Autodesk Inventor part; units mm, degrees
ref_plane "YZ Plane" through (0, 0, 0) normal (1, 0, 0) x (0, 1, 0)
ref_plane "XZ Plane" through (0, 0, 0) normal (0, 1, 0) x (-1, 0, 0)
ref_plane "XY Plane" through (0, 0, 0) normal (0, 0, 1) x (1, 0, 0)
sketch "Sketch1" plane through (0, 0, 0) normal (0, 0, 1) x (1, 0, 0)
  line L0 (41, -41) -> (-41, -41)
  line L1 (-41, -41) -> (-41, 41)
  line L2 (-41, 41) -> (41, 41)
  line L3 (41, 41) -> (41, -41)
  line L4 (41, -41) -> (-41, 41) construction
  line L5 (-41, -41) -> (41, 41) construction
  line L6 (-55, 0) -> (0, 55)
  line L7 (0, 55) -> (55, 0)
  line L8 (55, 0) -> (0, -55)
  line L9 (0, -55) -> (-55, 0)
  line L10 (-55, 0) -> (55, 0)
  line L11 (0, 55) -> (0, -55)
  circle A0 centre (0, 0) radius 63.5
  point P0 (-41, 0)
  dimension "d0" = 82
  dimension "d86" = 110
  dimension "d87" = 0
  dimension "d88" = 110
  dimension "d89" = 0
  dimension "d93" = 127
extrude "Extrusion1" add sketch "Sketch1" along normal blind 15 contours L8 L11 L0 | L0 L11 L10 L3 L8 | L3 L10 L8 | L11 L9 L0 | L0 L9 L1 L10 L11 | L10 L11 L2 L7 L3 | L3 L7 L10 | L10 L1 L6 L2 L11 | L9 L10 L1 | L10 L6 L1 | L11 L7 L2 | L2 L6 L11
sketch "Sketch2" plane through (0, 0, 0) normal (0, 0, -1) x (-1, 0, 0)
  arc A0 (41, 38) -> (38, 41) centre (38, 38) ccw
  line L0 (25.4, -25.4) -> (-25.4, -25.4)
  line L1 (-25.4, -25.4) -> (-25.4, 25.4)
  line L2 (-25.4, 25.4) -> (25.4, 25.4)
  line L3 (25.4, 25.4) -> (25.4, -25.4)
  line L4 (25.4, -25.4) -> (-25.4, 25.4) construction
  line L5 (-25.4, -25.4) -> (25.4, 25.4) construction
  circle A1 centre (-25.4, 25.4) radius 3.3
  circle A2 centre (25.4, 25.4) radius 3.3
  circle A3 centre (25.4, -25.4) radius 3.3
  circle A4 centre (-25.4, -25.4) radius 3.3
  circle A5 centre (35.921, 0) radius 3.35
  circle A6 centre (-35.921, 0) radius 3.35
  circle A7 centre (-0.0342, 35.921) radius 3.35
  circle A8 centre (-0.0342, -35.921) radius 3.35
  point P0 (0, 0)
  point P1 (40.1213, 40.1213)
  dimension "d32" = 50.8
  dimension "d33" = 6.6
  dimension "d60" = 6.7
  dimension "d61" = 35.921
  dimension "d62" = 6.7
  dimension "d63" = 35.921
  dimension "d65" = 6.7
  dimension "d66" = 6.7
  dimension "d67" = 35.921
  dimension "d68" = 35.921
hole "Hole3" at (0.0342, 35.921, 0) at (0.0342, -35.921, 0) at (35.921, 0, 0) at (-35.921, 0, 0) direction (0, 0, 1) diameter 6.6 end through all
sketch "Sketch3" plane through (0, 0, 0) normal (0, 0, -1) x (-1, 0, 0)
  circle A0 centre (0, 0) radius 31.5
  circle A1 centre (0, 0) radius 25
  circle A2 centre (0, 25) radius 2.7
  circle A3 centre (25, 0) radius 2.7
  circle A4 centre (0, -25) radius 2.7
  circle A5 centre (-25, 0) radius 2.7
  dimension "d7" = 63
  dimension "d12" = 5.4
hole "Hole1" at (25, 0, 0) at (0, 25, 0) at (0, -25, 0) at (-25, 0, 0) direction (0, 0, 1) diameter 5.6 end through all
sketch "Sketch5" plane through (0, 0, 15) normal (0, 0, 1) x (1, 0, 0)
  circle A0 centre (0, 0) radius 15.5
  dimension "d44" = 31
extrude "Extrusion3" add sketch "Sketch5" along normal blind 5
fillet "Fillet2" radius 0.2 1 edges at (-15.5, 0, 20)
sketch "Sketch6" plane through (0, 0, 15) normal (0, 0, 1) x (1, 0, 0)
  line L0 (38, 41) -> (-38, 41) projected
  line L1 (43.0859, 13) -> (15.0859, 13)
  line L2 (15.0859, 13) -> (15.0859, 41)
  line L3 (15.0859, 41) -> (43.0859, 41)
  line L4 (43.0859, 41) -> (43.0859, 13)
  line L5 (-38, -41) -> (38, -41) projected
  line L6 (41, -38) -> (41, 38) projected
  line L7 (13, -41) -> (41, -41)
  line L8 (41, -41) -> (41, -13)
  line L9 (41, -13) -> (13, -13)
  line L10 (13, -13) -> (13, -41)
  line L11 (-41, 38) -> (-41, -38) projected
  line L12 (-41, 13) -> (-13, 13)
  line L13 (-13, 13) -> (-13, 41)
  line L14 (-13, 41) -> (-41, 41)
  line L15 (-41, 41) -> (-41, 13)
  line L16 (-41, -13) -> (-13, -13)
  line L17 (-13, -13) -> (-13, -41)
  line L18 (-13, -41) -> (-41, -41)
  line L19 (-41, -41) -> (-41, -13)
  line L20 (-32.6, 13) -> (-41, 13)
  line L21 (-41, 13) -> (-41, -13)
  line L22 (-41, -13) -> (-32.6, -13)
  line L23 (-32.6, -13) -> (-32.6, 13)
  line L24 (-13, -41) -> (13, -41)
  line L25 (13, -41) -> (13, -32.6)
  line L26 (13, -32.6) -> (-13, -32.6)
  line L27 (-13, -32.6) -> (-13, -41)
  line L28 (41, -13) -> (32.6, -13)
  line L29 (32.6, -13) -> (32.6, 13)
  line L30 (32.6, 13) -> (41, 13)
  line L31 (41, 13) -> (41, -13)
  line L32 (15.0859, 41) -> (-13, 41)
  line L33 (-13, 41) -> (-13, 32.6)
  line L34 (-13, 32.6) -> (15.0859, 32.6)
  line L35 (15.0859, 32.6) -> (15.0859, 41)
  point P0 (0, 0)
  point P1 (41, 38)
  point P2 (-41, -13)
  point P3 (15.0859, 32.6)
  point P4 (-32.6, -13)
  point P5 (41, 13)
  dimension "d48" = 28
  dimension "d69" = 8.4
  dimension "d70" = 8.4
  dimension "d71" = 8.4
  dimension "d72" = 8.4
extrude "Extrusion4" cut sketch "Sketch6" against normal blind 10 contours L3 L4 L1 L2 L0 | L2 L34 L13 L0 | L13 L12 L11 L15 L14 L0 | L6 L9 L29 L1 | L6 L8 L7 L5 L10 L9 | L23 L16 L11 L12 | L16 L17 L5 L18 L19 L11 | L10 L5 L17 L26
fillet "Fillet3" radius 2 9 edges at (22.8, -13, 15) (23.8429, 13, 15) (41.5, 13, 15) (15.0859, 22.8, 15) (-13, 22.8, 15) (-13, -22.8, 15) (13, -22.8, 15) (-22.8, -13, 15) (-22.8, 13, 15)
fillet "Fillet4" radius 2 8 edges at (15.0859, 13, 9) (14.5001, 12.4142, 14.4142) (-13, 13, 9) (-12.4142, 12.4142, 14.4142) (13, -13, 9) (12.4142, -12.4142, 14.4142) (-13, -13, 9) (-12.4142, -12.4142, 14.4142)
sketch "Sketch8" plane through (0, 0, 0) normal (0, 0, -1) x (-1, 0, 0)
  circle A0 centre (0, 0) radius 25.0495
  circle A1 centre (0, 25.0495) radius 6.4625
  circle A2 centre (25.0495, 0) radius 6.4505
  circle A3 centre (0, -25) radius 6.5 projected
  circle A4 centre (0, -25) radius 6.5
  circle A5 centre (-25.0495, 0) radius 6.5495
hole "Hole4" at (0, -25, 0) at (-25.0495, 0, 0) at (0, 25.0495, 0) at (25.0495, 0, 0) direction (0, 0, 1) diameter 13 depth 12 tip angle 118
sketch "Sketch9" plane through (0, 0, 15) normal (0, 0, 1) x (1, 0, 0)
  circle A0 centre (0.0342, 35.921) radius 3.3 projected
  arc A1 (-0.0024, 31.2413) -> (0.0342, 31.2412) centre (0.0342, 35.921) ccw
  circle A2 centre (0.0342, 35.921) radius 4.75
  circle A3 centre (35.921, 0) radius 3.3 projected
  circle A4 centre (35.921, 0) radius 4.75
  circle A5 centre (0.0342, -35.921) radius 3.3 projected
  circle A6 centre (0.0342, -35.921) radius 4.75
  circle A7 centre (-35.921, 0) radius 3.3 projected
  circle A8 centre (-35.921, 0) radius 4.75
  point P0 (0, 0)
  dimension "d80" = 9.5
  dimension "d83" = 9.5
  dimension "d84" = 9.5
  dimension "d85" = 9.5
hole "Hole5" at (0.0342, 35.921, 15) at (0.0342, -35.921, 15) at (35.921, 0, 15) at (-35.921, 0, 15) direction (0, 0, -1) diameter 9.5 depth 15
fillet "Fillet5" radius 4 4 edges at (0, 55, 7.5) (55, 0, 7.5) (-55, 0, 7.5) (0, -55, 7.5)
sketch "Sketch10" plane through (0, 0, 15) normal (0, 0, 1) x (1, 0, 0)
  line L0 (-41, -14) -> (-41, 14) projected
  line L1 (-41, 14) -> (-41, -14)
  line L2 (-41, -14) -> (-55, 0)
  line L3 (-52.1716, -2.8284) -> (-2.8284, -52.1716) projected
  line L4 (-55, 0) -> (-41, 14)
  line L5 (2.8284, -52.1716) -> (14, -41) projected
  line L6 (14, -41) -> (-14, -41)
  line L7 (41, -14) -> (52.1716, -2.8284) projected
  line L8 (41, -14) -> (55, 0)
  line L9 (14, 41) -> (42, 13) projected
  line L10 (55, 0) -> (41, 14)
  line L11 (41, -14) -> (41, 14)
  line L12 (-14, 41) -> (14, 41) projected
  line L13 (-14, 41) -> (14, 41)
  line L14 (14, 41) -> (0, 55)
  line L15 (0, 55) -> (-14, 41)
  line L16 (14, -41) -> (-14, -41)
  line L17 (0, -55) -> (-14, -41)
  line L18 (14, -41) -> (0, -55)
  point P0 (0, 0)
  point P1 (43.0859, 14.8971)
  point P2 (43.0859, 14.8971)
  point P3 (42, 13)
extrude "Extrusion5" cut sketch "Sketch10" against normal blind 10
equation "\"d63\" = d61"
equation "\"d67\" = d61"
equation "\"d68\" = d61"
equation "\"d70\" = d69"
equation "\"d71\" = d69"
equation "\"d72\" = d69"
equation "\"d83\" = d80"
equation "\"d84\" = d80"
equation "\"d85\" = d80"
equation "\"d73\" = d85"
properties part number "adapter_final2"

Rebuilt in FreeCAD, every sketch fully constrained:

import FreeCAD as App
import Part
import Sketcher
from FreeCAD import Vector


def edges_at(feature, points):
    """Names of the edges that pass closest to the given points."""
    edges = feature.Shape.Edges
    near = lambda p: min(range(len(edges)), key=lambda i: edges[i].distToShape(Part.Vertex(*p))[0])
    return sorted({f"Edge{near(p) + 1}" for p in points})


def add_polygon(sketch, points):
    """Adds a closed chain of lines whose ends are joined by coincident constraints."""
    first, n = sketch.GeometryCount, len(points)
    for a, b in zip(points, points[1:] + points[:1]):
        sketch.addGeometry(Part.LineSegment(App.Vector(*a, 0), App.Vector(*b, 0)), False)
    for i in range(n):
        sketch.addConstraint(Sketcher.Constraint("Coincident", first + i, 2, first + (i + 1) % n, 1))

doc = App.newDocument("Part")
params = doc.addObject("Spreadsheet::Sheet", "Params")
for row, (alias, value) in enumerate([
    ("pad1_length", "15 mm"),
    ("sketch2_diameter", "6.6 mm"),
    ("hole_diameter", "6.6 mm"),
    ("sketch3_diameter", "5.6 mm"),
    ("hole2_diameter", "5.6 mm"),
    ("sketch4_diameter", "31 mm"),
    ("pad2_length", "5 mm"),
    ("fillet_radius", "0.2 mm"),
    ("sketch5_height", "28 mm"),
    ("sketch5_width", "82 mm"),
    ("pocket1_length", "10 mm"),
    ("fillet2_radius", "2 mm"),
    ("fillet3_radius", "2 mm"),
    ("sketch6_diameter", "13 mm"),
    ("hole3_diameter", "13 mm"),
    ("hole3_depth", "12 mm"),
    ("sketch7_diameter", "9.5 mm"),
    ("hole4_diameter", "9.5 mm"),
    ("hole4_depth", "15 mm"),
    ("fillet4_radius", "4 mm"),
    ("sketch8_width", "28 mm"),
    ("pocket2_length", "10 mm"),
], start=1):
    params.set(f"A{row}", alias)
    params.set(f"B{row}", "=" + value)
    params.setAlias(f"B{row}", alias)

body = doc.addObject("PartDesign::Body", "Body")

# Sketch on XY plane
sketch1 = doc.addObject("Sketcher::SketchObject", "Sketch")
body.addObject(sketch1)
sketch1.AttachmentSupport = (doc.XY_Plane, [""])
sketch1.MapMode = "FlatFace"
add_polygon(sketch1, [(0, -55), (55, 0), (0, 55), (-55, 0)])  # lines 0-3
sketch1.addConstraint([
    Sketcher.Constraint("Symmetric", 0, 2, 2, 2, -1, 1),
    Sketcher.Constraint("Symmetric", 1, 2, 3, 2, -1, 1),
    Sketcher.Constraint("PointOnObject", 0, 2, -1),
    Sketcher.Constraint("PointOnObject", 1, 2, -2),
    Sketcher.Constraint("Perpendicular", 0, 1),
    Sketcher.Constraint("DistanceX", 2, 2, 0, 2, 110.0),
])
pad1 = doc.addObject("PartDesign::Pad", "Pad")
body.addObject(pad1)
pad1.Profile = sketch1
pad1.setExpression("Length", "Params.pad1_length")

# Sketch on XY plane
sketch2 = doc.addObject("Sketcher::SketchObject", "Sketch001")
body.addObject(sketch2)
sketch2.AttachmentSupport = (doc.XY_Plane, [""])
sketch2.MapMode = "FlatFace"
sketch2.addGeometry([
    Part.Circle(Vector(0, 35.9, 0), Vector(0, 0, 1), 3.3),
    Part.Circle(Vector(0, -35.9, 0), Vector(0, 0, 1), 3.3),
    Part.Circle(Vector(35.9, 0, 0), Vector(0, 0, 1), 3.3),
    Part.Circle(Vector(-35.9, 0, 0), Vector(0, 0, 1), 3.3),
], False)
sketch2.addConstraint([
    Sketcher.Constraint("Equal", 0, 1),
    Sketcher.Constraint("Equal", 1, 2),
    Sketcher.Constraint("Equal", 2, 3),
    Sketcher.Constraint("Symmetric", 2, 3, 3, 3, -1, 1),
    Sketcher.Constraint("Symmetric", 0, 3, 1, 3, -1),
    Sketcher.Constraint("PointOnObject", 2, 3, -1),
    Sketcher.Constraint("Diameter", 0, 6.6),
    Sketcher.Constraint("DistanceY", -1, 1, 0, 3, 35.921),
    Sketcher.Constraint("DistanceX", -1, 1, 2, 3, 35.921),
    Sketcher.Constraint("DistanceX", -1, 1, 0, 3, 0.0342),
])
sketch2.setExpression("Constraints[6]", "Params.sketch2_diameter")
doc.recompute()
hole = doc.addObject("PartDesign::Hole", "Hole")
body.addObject(hole)
hole.Profile = sketch2
hole.ThreadType = "None"
hole.setExpression("Diameter", "Params.hole_diameter")
hole.DepthType = "ThroughAll"
hole.Reversed = True

# Sketch on XY plane
sketch3 = doc.addObject("Sketcher::SketchObject", "Sketch002")
body.addObject(sketch3)
sketch3.AttachmentSupport = (doc.XY_Plane, [""])
sketch3.MapMode = "FlatFace"
sketch3.addGeometry([
    Part.Circle(Vector(25, 0, 0), Vector(0, 0, 1), 2.8),
    Part.Circle(Vector(0, 25, 0), Vector(0, 0, 1), 2.8),
    Part.Circle(Vector(0, -25, 0), Vector(0, 0, 1), 2.8),
    Part.Circle(Vector(-25, 0, 0), Vector(0, 0, 1), 2.8),
], False)
sketch3.addConstraint([
    Sketcher.Constraint("Equal", 0, 1),
    Sketcher.Constraint("Equal", 1, 2),
    Sketcher.Constraint("Equal", 2, 3),
    Sketcher.Constraint("Symmetric", 1, 3, 2, 3, -1, 1),
    Sketcher.Constraint("Symmetric", 0, 3, 3, 3, -1, 1),
    Sketcher.Constraint("PointOnObject", 0, 3, -1),
    Sketcher.Constraint("PointOnObject", 1, 3, -2),
    Sketcher.Constraint("Diameter", 0, 5.6),
    Sketcher.Constraint("DistanceX", -1, 1, 0, 3, 25.0),
    Sketcher.Constraint("DistanceY", -1, 1, 1, 3, 25.0),
])
sketch3.setExpression("Constraints[7]", "Params.sketch3_diameter")
doc.recompute()
hole2 = doc.addObject("PartDesign::Hole", "Hole001")
body.addObject(hole2)
hole2.Profile = sketch3
hole2.ThreadType = "None"
hole2.setExpression("Diameter", "Params.hole2_diameter")
hole2.DepthType = "ThroughAll"
hole2.Reversed = True

# Sketch on XY plane
sketch4 = doc.addObject("Sketcher::SketchObject", "Sketch003")
body.addObject(sketch4)
sketch4.AttachmentSupport = (doc.XY_Plane, [""])
sketch4.MapMode = "FlatFace"
sketch4.AttachmentOffset = App.Placement(Vector(0, 0, 15), App.Rotation())
sketch4.addGeometry(Part.Circle(Vector(0, 0, 0), Vector(0, 0, 1), 16), False)
sketch4.addConstraint([
    Sketcher.Constraint("Coincident", 0, 3, -1, 1),
    Sketcher.Constraint("Diameter", 0, 31.0),
])
sketch4.setExpression("Constraints[1]", "Params.sketch4_diameter")
pad2 = doc.addObject("PartDesign::Pad", "Pad001")
body.addObject(pad2)
pad2.Profile = sketch4
pad2.setExpression("Length", "Params.pad2_length")
doc.recompute()

fillet = doc.addObject("PartDesign::Fillet", "Fillet")
body.addObject(fillet)
fillet.Base = (pad2, edges_at(pad2, [(-15.5, 0, 20)]))
fillet.setExpression("Radius", "Params.fillet_radius")

# Sketch on XY plane
sketch5 = doc.addObject("Sketcher::SketchObject", "Sketch004")
body.addObject(sketch5)
sketch5.AttachmentSupport = (doc.XY_Plane, [""])
sketch5.MapMode = "FlatFace"
sketch5.AttachmentOffset = App.Placement(Vector(0, 0, 15), App.Rotation())
add_polygon(sketch5, [(43.1, 41), (-41, 41), (-41, -41), (41, -41), (41, 13), (43.1, 13)])  # lines 0-5
add_polygon(sketch5, [(15.1, 13), (32.6, 13), (32.6, -13), (13, -13), (13, -32.6), (-13, -32.6), (-13, -13), (-32.6, -13), (-32.6, 13), (-13, 13), (-13, 32.6), (15.1, 32.6)])  # lines 6-17
sketch5.addConstraint([
    Sketcher.Constraint("Horizontal", 0),
    Sketcher.Constraint("Vertical", 1),
    Sketcher.Constraint("Horizontal", 2),
    Sketcher.Constraint("Vertical", 3),
    Sketcher.Constraint("Horizontal", 4),
    Sketcher.Constraint("Vertical", 5),
    Sketcher.Constraint("Horizontal", 6),
    Sketcher.Constraint("Vertical", 7),
    Sketcher.Constraint("Horizontal", 8),
    Sketcher.Constraint("Vertical", 9),
    Sketcher.Constraint("Horizontal", 10),
    Sketcher.Constraint("Vertical", 11),
    Sketcher.Constraint("Horizontal", 12),
    Sketcher.Constraint("Vertical", 13),
    Sketcher.Constraint("Horizontal", 14),
    Sketcher.Constraint("Vertical", 15),
    Sketcher.Constraint("Horizontal", 16),
    Sketcher.Constraint("Vertical", 17),
    Sketcher.Constraint("Symmetric", 0, 2, 2, 2, -1, 1),
    Sketcher.Constraint("Symmetric", 6, 2, 12, 2, -1, 1),
    Sketcher.Constraint("Symmetric", 8, 2, 14, 2, -1, 1),
    Sketcher.Constraint("Symmetric", 8, 2, 11, 2, -2),
    Sketcher.Constraint("Horizontal", 4, 2, 6, 2),
    Sketcher.Constraint("Equal", 2, 1),
    Sketcher.Constraint("Equal", 10, 7),
    Sketcher.Constraint("Equal", 14, 9),
    Sketcher.Constraint("Equal", 11, 15),
    Sketcher.Constraint("DistanceY", 5, 1, 5, 2, 28.0),
    Sketcher.Constraint("DistanceX", 16, 2, 5, 2, 28.0),
    Sketcher.Constraint("DistanceX", 6, 2, 3, 2, 8.4),
    Sketcher.Constraint("DistanceX", 2, 1, 2, 2, 82.0),
    Sketcher.Constraint("DistanceX", 0, 2, 0, 1, 84.086),
])
sketch5.setExpression("Constraints[45]", "Params.sketch5_height")
sketch5.setExpression("Constraints[48]", "Params.sketch5_width")
pocket1 = doc.addObject("PartDesign::Pocket", "Pocket")
body.addObject(pocket1)
pocket1.Profile = sketch5
pocket1.setExpression("Length", "Params.pocket1_length")
doc.recompute()

fillet2 = doc.addObject("PartDesign::Fillet", "Fillet001")
body.addObject(fillet2)
fillet2.Base = (pocket1, edges_at(pocket1, [
    (22.8, -13, 15),
    (23.843, 13, 15),
    (41.5, 13, 15),
    (15.086, 22.8, 15),
    (-13, 22.8, 15),
    (-13, -22.8, 15),
    (13, -22.8, 15),
    (-22.8, -13, 15),
    (-22.8, 13, 15),
]))
fillet2.setExpression("Radius", "Params.fillet2_radius")
doc.recompute()

fillet3 = doc.addObject("PartDesign::Fillet", "Fillet002")
body.addObject(fillet3)
fillet3.Base = (fillet2, edges_at(fillet2, [
    (15.086, 13, 9),
    (14.5, 12.414, 14.414),
    (-13, 13, 9),
    (-12.414, 12.414, 14.414),
    (13, -13, 9),
    (12.414, -12.414, 14.414),
    (-13, -13, 9),
    (-12.414, -12.414, 14.414),
]))
fillet3.setExpression("Radius", "Params.fillet3_radius")

# Sketch on XY plane
sketch6 = doc.addObject("Sketcher::SketchObject", "Sketch005")
body.addObject(sketch6)
sketch6.AttachmentSupport = (doc.XY_Plane, [""])
sketch6.MapMode = "FlatFace"
sketch6.addGeometry([
    Part.Circle(Vector(0, -25, 0), Vector(0, 0, 1), 6),
    Part.Circle(Vector(-25, 0, 0), Vector(0, 0, 1), 6),
    Part.Circle(Vector(0, 25, 0), Vector(0, 0, 1), 6),
    Part.Circle(Vector(25, 0, 0), Vector(0, 0, 1), 6),
], False)
sketch6.addConstraint([
    Sketcher.Constraint("Equal", 0, 1),
    Sketcher.Constraint("Equal", 1, 2),
    Sketcher.Constraint("Equal", 2, 3),
    Sketcher.Constraint("Symmetric", 1, 3, 3, 3, -1, 1),
    Sketcher.Constraint("PointOnObject", 0, 3, -2),
    Sketcher.Constraint("PointOnObject", 1, 3, -1),
    Sketcher.Constraint("PointOnObject", 2, 3, -2),
    Sketcher.Constraint("Diameter", 0, 13.0),
    Sketcher.Constraint("DistanceY", 0, 3, -1, 1, 25.0),
    Sketcher.Constraint("DistanceX", 1, 3, 3, 3, 50.099),
    Sketcher.Constraint("DistanceY", -1, 1, 2, 3, 25.0495),
])
sketch6.setExpression("Constraints[7]", "Params.sketch6_diameter")
doc.recompute()
hole3 = doc.addObject("PartDesign::Hole", "Hole002")
body.addObject(hole3)
hole3.Profile = sketch6
hole3.ThreadType = "None"
hole3.setExpression("Diameter", "Params.hole3_diameter")
hole3.DepthType = "Dimension"
hole3.setExpression("Depth", "Params.hole3_depth")
hole3.DrillPoint = "Angled"
hole3.DrillPointAngle = 118
hole3.Reversed = True

# Sketch on XY plane
sketch7 = doc.addObject("Sketcher::SketchObject", "Sketch006")
body.addObject(sketch7)
sketch7.AttachmentSupport = (doc.XY_Plane, [""])
sketch7.MapMode = "FlatFace"
sketch7.AttachmentOffset = App.Placement(Vector(0, 0, 15), App.Rotation())
sketch7.addGeometry([
    Part.Circle(Vector(0, 35.9, 0), Vector(0, 0, 1), 4.8),
    Part.Circle(Vector(0, -35.9, 0), Vector(0, 0, 1), 4.8),
    Part.Circle(Vector(35.9, 0, 0), Vector(0, 0, 1), 4.8),
    Part.Circle(Vector(-35.9, 0, 0), Vector(0, 0, 1), 4.8),
], False)
sketch7.addConstraint([
    Sketcher.Constraint("Equal", 0, 1),
    Sketcher.Constraint("Equal", 1, 2),
    Sketcher.Constraint("Equal", 2, 3),
    Sketcher.Constraint("Symmetric", 2, 3, 3, 3, -1, 1),
    Sketcher.Constraint("Symmetric", 0, 3, 1, 3, -1),
    Sketcher.Constraint("PointOnObject", 2, 3, -1),
    Sketcher.Constraint("Diameter", 0, 9.5),
    Sketcher.Constraint("DistanceY", -1, 1, 0, 3, 35.921),
    Sketcher.Constraint("DistanceX", -1, 1, 2, 3, 35.921),
    Sketcher.Constraint("DistanceX", -1, 1, 0, 3, 0.0342),
])
sketch7.setExpression("Constraints[6]", "Params.sketch7_diameter")
doc.recompute()
hole4 = doc.addObject("PartDesign::Hole", "Hole003")
body.addObject(hole4)
hole4.Profile = sketch7
hole4.ThreadType = "None"
hole4.setExpression("Diameter", "Params.hole4_diameter")
hole4.DepthType = "Dimension"
hole4.setExpression("Depth", "Params.hole4_depth")
hole4.DrillPoint = "Flat"
doc.recompute()

fillet4 = doc.addObject("PartDesign::Fillet", "Fillet003")
body.addObject(fillet4)
fillet4.Base = (hole4, edges_at(hole4, [
    (0, 55, 7.5),
    (55, 0, 7.5),
    (-55, 0, 7.5),
    (0, -55, 7.5),
]))
fillet4.setExpression("Radius", "Params.fillet4_radius")

# Sketch on XY plane
sketch8 = doc.addObject("Sketcher::SketchObject", "Sketch007")
body.addObject(sketch8)
sketch8.AttachmentSupport = (doc.XY_Plane, [""])
sketch8.MapMode = "FlatFace"
sketch8.AttachmentOffset = App.Placement(Vector(0, 0, 15), App.Rotation())
add_polygon(sketch8, [(-55, 0), (-41, -14), (-41, 14)])  # lines 0-2
add_polygon(sketch8, [(14, -41), (-14, -41), (0, -55)])  # lines 3-5
add_polygon(sketch8, [(41, 14), (41, -14), (55, 0)])  # lines 6-8
add_polygon(sketch8, [(-14, 41), (14, 41), (0, 55)])  # lines 9-11
sketch8.addConstraint([
    Sketcher.Constraint("Vertical", 1),
    Sketcher.Constraint("Horizontal", 3),
    Sketcher.Constraint("Vertical", 6),
    Sketcher.Constraint("Horizontal", 9),
    Sketcher.Constraint("Symmetric", 1, 2, 6, 2, -1, 1),
    Sketcher.Constraint("Symmetric", 2, 2, 7, 2, -1, 1),
    Sketcher.Constraint("Symmetric", 3, 2, 9, 2, -1, 1),
    Sketcher.Constraint("Symmetric", 4, 2, 10, 2, -1, 1),
    Sketcher.Constraint("PointOnObject", 2, 2, -1),
    Sketcher.Constraint("PointOnObject", 4, 2, -2),
    Sketcher.Constraint("Perpendicular", 0, 2),
    Sketcher.Constraint("Perpendicular", 2, 4),
    Sketcher.Constraint("Perpendicular", 4, 5),
    Sketcher.Constraint("Perpendicular", 7, 8),
    Sketcher.Constraint("Perpendicular", 10, 11),
    Sketcher.Constraint("Horizontal", 0, 2, 6, 2),
    Sketcher.Constraint("Equal", 9, 1),
    Sketcher.Constraint("DistanceX", 3, 2, 3, 1, 28.0),
    Sketcher.Constraint("DistanceX", 0, 2, -1, 1, 41.0),
    Sketcher.Constraint("DistanceY", 3, 2, -1, 1, 41.0),
])
sketch8.setExpression("Constraints[29]", "Params.sketch8_width")
pocket2 = doc.addObject("PartDesign::Pocket", "Pocket001")
body.addObject(pocket2)
pocket2.Profile = sketch8
pocket2.setExpression("Length", "Params.pocket2_length")

doc.recompute()
